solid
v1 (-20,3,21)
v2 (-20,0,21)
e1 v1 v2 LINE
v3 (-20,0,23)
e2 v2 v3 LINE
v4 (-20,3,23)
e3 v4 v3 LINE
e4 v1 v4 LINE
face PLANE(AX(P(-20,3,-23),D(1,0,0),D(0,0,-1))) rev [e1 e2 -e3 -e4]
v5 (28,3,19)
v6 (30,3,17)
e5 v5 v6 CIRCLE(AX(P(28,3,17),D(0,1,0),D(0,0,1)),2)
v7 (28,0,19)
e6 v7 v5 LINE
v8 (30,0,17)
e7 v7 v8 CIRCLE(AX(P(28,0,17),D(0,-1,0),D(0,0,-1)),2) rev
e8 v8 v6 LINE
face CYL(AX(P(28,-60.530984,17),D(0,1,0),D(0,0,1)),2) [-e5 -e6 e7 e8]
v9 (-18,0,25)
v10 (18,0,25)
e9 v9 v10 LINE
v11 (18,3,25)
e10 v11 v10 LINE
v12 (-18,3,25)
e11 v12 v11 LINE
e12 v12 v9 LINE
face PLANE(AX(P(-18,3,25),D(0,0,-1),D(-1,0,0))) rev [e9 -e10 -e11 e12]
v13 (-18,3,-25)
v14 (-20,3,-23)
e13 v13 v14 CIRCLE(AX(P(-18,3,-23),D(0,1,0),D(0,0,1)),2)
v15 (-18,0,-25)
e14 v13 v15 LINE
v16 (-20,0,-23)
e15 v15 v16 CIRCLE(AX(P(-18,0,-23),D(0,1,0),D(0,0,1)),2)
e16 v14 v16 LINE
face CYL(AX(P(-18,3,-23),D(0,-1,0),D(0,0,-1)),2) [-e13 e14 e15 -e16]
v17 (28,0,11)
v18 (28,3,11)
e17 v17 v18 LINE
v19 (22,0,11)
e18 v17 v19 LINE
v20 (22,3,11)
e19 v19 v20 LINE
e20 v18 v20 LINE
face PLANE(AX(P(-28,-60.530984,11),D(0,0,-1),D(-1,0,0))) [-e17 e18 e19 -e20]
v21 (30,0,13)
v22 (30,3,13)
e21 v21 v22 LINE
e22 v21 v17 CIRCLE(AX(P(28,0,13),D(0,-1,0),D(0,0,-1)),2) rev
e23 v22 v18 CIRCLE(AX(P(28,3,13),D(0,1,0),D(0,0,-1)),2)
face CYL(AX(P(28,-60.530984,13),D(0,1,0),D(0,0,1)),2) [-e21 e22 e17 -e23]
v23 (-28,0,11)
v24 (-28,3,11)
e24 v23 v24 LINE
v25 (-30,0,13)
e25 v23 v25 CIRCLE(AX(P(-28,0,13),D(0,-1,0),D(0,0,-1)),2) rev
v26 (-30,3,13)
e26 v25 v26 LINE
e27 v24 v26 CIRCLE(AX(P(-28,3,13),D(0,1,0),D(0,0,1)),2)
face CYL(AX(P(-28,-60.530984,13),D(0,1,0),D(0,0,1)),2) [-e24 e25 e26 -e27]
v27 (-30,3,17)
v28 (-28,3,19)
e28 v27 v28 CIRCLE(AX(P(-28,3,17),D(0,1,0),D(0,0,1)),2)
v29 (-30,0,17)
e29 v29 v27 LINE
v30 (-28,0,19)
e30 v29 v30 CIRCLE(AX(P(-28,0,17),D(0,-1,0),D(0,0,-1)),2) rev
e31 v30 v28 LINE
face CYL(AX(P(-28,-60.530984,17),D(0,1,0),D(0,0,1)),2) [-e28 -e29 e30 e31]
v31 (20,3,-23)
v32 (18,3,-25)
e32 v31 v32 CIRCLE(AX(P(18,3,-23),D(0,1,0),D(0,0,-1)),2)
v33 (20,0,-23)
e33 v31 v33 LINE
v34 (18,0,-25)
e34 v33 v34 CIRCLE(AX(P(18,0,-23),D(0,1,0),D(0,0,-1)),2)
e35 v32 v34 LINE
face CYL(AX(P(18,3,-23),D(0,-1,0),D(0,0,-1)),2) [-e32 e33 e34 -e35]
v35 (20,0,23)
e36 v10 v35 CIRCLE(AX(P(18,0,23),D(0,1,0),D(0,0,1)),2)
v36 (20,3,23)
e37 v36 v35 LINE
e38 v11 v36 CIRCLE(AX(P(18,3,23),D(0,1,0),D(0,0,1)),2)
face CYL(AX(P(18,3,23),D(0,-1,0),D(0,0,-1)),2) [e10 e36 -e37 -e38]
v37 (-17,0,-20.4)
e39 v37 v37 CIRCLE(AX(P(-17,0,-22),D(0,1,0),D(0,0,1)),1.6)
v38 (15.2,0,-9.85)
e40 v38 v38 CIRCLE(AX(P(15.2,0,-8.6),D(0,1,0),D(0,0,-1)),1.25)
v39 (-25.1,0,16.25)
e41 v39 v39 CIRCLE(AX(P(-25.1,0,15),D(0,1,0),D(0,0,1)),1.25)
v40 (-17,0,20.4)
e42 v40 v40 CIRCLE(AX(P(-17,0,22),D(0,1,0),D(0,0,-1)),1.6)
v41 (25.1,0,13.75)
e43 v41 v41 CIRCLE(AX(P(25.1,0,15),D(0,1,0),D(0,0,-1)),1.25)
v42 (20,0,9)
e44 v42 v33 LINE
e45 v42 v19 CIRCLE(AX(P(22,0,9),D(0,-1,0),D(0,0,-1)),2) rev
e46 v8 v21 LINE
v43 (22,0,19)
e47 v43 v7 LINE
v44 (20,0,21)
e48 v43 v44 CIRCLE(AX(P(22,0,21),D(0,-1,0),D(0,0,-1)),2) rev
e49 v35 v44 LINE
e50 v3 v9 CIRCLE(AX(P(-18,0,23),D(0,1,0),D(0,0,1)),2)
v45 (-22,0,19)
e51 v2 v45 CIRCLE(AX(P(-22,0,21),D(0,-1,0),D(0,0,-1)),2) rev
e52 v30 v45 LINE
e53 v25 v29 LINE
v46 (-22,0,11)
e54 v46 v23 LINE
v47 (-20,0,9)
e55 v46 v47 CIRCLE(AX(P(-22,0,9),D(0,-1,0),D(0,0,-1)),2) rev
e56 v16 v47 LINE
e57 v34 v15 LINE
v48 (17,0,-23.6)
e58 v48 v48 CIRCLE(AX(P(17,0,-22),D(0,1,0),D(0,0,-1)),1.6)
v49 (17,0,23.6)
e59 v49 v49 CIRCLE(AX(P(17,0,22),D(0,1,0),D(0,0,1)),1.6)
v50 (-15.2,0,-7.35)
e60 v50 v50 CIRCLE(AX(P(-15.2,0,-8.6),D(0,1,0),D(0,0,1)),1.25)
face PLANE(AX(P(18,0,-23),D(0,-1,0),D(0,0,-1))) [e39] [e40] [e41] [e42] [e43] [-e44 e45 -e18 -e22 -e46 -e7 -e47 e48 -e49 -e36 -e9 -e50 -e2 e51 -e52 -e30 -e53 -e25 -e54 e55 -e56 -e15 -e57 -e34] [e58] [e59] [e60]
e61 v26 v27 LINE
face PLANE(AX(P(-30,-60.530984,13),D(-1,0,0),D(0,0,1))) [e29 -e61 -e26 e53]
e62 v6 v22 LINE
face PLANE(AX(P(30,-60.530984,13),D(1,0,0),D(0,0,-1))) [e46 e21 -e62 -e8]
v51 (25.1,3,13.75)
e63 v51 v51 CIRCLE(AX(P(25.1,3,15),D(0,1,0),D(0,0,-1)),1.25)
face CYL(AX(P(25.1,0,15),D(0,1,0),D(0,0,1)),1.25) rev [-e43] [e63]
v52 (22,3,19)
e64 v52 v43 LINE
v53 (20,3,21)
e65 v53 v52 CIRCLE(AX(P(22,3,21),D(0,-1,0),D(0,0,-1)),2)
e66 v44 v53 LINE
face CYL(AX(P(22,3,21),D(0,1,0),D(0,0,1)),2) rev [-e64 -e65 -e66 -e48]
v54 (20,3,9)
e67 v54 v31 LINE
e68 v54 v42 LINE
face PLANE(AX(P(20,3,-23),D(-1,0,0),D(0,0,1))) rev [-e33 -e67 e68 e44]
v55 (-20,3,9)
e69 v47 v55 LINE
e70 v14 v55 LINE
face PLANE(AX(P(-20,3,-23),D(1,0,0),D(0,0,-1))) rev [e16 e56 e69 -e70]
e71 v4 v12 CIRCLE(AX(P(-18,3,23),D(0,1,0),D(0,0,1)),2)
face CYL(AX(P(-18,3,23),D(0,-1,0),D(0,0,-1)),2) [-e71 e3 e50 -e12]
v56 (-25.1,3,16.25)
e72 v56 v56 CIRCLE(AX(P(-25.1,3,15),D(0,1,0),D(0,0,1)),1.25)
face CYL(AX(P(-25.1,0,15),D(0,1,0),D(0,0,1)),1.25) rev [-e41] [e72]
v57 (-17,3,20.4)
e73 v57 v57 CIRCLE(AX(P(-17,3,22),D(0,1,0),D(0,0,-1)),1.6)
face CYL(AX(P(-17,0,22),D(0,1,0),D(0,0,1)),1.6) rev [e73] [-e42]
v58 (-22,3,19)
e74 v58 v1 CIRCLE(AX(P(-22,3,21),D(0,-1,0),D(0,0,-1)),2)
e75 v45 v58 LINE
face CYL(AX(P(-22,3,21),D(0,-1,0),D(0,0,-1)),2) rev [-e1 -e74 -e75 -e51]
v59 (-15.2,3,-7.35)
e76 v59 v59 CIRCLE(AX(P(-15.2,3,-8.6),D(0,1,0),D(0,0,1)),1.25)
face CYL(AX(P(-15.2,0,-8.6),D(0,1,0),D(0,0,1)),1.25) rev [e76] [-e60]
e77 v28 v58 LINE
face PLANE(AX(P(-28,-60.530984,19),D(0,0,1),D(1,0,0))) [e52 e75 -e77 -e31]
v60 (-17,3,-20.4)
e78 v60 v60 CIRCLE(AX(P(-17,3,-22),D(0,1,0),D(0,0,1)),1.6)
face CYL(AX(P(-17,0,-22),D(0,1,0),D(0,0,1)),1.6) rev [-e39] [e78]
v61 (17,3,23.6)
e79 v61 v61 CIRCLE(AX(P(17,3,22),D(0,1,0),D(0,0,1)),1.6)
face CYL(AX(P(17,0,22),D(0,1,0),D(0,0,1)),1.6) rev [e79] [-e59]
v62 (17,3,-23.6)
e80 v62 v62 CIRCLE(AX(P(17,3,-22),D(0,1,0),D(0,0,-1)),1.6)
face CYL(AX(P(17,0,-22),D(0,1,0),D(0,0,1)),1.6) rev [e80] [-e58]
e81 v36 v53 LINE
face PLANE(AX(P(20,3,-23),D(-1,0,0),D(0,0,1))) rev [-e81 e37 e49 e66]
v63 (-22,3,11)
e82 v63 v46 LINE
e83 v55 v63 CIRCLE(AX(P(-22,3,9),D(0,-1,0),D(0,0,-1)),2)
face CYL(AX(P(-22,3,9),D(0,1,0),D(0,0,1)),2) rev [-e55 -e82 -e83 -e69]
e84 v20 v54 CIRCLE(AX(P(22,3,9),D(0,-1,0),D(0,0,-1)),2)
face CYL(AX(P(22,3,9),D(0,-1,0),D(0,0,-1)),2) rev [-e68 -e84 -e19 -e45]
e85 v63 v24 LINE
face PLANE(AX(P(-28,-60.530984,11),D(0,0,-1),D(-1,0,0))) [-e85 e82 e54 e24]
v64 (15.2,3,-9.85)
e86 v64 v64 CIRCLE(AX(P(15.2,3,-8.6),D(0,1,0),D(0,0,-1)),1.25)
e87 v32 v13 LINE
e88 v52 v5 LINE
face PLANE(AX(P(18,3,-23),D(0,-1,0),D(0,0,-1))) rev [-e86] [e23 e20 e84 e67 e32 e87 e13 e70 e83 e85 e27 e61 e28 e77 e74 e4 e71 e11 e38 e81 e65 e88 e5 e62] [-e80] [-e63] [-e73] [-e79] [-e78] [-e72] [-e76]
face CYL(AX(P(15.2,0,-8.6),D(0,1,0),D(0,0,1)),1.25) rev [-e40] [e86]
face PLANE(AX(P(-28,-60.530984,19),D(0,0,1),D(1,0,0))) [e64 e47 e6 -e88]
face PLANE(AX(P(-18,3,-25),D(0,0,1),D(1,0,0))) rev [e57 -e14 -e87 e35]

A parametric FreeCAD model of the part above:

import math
import FreeCAD as App
import Part
import Sketcher


def edges_at(feature, points):
    """Names of the edges that pass closest to the given points."""
    edges = feature.Shape.Edges
    near = lambda p: min(range(len(edges)), key=lambda i: edges[i].distToShape(Part.Vertex(*p))[0])
    return sorted({f"Edge{near(p) + 1}" for p in points})

doc = App.newDocument("Part")
body = doc.addObject("PartDesign::Body", "Body")

# Sketch on XZ plane
sketch1 = doc.addObject("Sketcher::SketchObject", "Sketch")
body.addObject(sketch1)
sketch1.AttachmentSupport = (doc.XZ_Plane, [""])
sketch1.MapMode = "FlatFace"
sketch1.addGeometry([
    Part.LineSegment(App.Vector(18, -25, 0), App.Vector(-18, -25, 0)),  # 0
    Part.ArcOfCircle(Part.Circle(App.Vector(-18, -23, 0), App.Vector(0, 0, 1), 2), math.radians(-180), math.radians(-90)),  # 1
    Part.LineSegment(App.Vector(-20, -23, 0), App.Vector(-20, 23, 0)),  # 2
    Part.ArcOfCircle(Part.Circle(App.Vector(-18, 23, 0), App.Vector(0, 0, 1), 2), math.radians(90), math.radians(180)),  # 3
    Part.LineSegment(App.Vector(-18, 25, 0), App.Vector(18, 25, 0)),  # 4
    Part.ArcOfCircle(Part.Circle(App.Vector(18, 23, 0), App.Vector(0, 0, 1), 2), math.radians(0), math.radians(90)),  # 5
    Part.LineSegment(App.Vector(20, 23, 0), App.Vector(20, -23, 0)),  # 6
    Part.ArcOfCircle(Part.Circle(App.Vector(18, -23, 0), App.Vector(0, 0, 1), 2), math.radians(-90), math.radians(0)),  # 7
], False)
sketch1.addConstraint([
    Sketcher.Constraint("Tangent", 0, 2, 1, 2),
    Sketcher.Constraint("Tangent", 1, 1, 2, 1),
    Sketcher.Constraint("Tangent", 2, 2, 3, 2),
    Sketcher.Constraint("Tangent", 3, 1, 4, 1),
    Sketcher.Constraint("Tangent", 4, 2, 5, 2),
    Sketcher.Constraint("Tangent", 5, 1, 6, 1),
    Sketcher.Constraint("Tangent", 6, 2, 7, 2),
    Sketcher.Constraint("Tangent", 7, 1, 0, 1),
    Sketcher.Constraint("Horizontal", 0),
    Sketcher.Constraint("Vertical", 2),
    Sketcher.Constraint("Horizontal", 4),
    Sketcher.Constraint("Vertical", 6),
    Sketcher.Constraint("Equal", 1, 3),
    Sketcher.Constraint("Equal", 3, 5),
    Sketcher.Constraint("Equal", 5, 7),
    Sketcher.Constraint("Symmetric", 1, 3, 5, 3, -1, 1),
    Sketcher.Constraint("Radius", 1, 2.0),
    Sketcher.Constraint("DistanceX", 0, 2, 0, 1, 36.0),
    Sketcher.Constraint("DistanceY", 2, 1, 2, 2, 46.0),
])
pad1 = doc.addObject("PartDesign::Pad", "Pad")
body.addObject(pad1)
pad1.Profile = sketch1
pad1.Length = 3
pad1.Reversed = True

# Sketch on XZ plane
sketch2 = doc.addObject("Sketcher::SketchObject", "Sketch001")
body.addObject(sketch2)
sketch2.AttachmentSupport = (doc.XZ_Plane, [""])
sketch2.MapMode = "FlatFace"
sketch2.AttachmentOffset = App.Placement(App.Vector(0, 0, -3), App.Rotation())
sketch2.addGeometry([
    Part.LineSegment(App.Vector(28, 11, 0), App.Vector(-28, 11, 0)),  # 0
    Part.ArcOfCircle(Part.Circle(App.Vector(-28, 13, 0), App.Vector(0, 0, 1), 2), math.radians(-180), math.radians(-90)),  # 1
    Part.LineSegment(App.Vector(-30, 13, 0), App.Vector(-30, 17, 0)),  # 2
    Part.ArcOfCircle(Part.Circle(App.Vector(-28, 17, 0), App.Vector(0, 0, 1), 2), math.radians(90), math.radians(180)),  # 3
    Part.LineSegment(App.Vector(-28, 19, 0), App.Vector(28, 19, 0)),  # 4
    Part.ArcOfCircle(Part.Circle(App.Vector(28, 17, 0), App.Vector(0, 0, 1), 2), math.radians(0), math.radians(90)),  # 5
    Part.LineSegment(App.Vector(30, 17, 0), App.Vector(30, 13, 0)),  # 6
    Part.ArcOfCircle(Part.Circle(App.Vector(28, 13, 0), App.Vector(0, 0, 1), 2), math.radians(-90), math.radians(0)),  # 7
], False)
sketch2.addConstraint([
    Sketcher.Constraint("Tangent", 0, 2, 1, 2),
    Sketcher.Constraint("Tangent", 1, 1, 2, 1),
    Sketcher.Constraint("Tangent", 2, 2, 3, 2),
    Sketcher.Constraint("Tangent", 3, 1, 4, 1),
    Sketcher.Constraint("Tangent", 4, 2, 5, 2),
    Sketcher.Constraint("Tangent", 5, 1, 6, 1),
    Sketcher.Constraint("Tangent", 6, 2, 7, 2),
    Sketcher.Constraint("Tangent", 7, 1, 0, 1),
    Sketcher.Constraint("Horizontal", 0),
    Sketcher.Constraint("Vertical", 2),
    Sketcher.Constraint("Horizontal", 4),
    Sketcher.Constraint("Vertical", 6),
    Sketcher.Constraint("Equal", 1, 3),
    Sketcher.Constraint("Equal", 3, 5),
    Sketcher.Constraint("Equal", 5, 7),
    Sketcher.Constraint("Radius", 1, 2.0),
    Sketcher.Constraint("DistanceX", 0, 2, 0, 1, 56.0),
    Sketcher.Constraint("DistanceY", 2, 1, 2, 2, 4.0),
    Sketcher.Constraint("DistanceX", 1, 3, -1, 1, 28.0),
    Sketcher.Constraint("DistanceY", -1, 1, 1, 3, 13.0),
])
pad2 = doc.addObject("PartDesign::Pad", "Pad001")
body.addObject(pad2)
pad2.Profile = sketch2
pad2.Length = 3

# Sketch on XZ plane
sketch3 = doc.addObject("Sketcher::SketchObject", "Sketch002")
body.addObject(sketch3)
sketch3.AttachmentSupport = (doc.XZ_Plane, [""])
sketch3.MapMode = "FlatFace"
sketch3.AttachmentOffset = App.Placement(App.Vector(0, 0, -3), App.Rotation())
sketch3.addGeometry([
    Part.Circle(App.Vector(-25.1, 15, 0), App.Vector(0, 0, 1), 1.2),
    Part.Circle(App.Vector(-15.2, -8.6, 0), App.Vector(0, 0, 1), 1.2),
    Part.Circle(App.Vector(15.2, -8.6, 0), App.Vector(0, 0, 1), 1.2),
    Part.Circle(App.Vector(25.1, 15, 0), App.Vector(0, 0, 1), 1.2),
], False)
sketch3.addConstraint([
    Sketcher.Constraint("Equal", 0, 1),
    Sketcher.Constraint("Equal", 1, 2),
    Sketcher.Constraint("Equal", 2, 3),
    Sketcher.Constraint("Symmetric", 1, 3, 2, 3, -2),
    Sketcher.Constraint("Symmetric", 0, 3, 3, 3, -2),
    Sketcher.Constraint("Diameter", 0, 2.5),
    Sketcher.Constraint("DistanceY", -1, 1, 0, 3, 15.0),
    Sketcher.Constraint("DistanceX", 0, 3, -1, 1, 25.1),
    Sketcher.Constraint("DistanceX", 1, 3, -1, 1, 15.2),
    Sketcher.Constraint("DistanceY", 1, 3, -1, 1, 8.6),
])
pocket1 = doc.addObject("PartDesign::Pocket", "Pocket")
body.addObject(pocket1)
pocket1.Profile = sketch3
pocket1.Length = 3
pocket1.Reversed = True

# Sketch on XZ plane
sketch4 = doc.addObject("Sketcher::SketchObject", "Sketch003")
body.addObject(sketch4)
sketch4.AttachmentSupport = (doc.XZ_Plane, [""])
sketch4.MapMode = "FlatFace"
sketch4.AttachmentOffset = App.Placement(App.Vector(0, 0, -3), App.Rotation())
sketch4.addGeometry([
    Part.Circle(App.Vector(-17, -22, 0), App.Vector(0, 0, 1), 1.6),
    Part.Circle(App.Vector(-17, 22, 0), App.Vector(0, 0, 1), 1.6),
    Part.Circle(App.Vector(17, 22, 0), App.Vector(0, 0, 1), 1.6),
    Part.Circle(App.Vector(17, -22, 0), App.Vector(0, 0, 1), 1.6),
], False)
sketch4.addConstraint([
    Sketcher.Constraint("Equal", 0, 1),
    Sketcher.Constraint("Equal", 1, 2),
    Sketcher.Constraint("Equal", 2, 3),
    Sketcher.Constraint("Symmetric", 0, 3, 2, 3, -1, 1),
    Sketcher.Constraint("Symmetric", 1, 3, 3, 3, -1, 1),
    Sketcher.Constraint("Symmetric", 1, 3, 2, 3, -2),
    Sketcher.Constraint("Diameter", 0, 3.2),
    Sketcher.Constraint("DistanceX", 0, 3, -1, 1, 17.0),
    Sketcher.Constraint("DistanceY", 0, 3, -1, 1, 22.0),
])
pocket2 = doc.addObject("PartDesign::Pocket", "Pocket001")
body.addObject(pocket2)
pocket2.Profile = sketch4
pocket2.Length = 3
pocket2.Reversed = True
doc.recompute()

fillet = doc.addObject("PartDesign::Fillet", "Fillet")
body.addObject(fillet)
fillet.Base = (pocket2, edges_at(pocket2, [
    (-20, 1.5, 11),
    (20, 1.5, 11),
    (-20, 1.5, 19),
    (20, 1.5, 19),
]))
fillet.Radius = 2

doc.recompute()
